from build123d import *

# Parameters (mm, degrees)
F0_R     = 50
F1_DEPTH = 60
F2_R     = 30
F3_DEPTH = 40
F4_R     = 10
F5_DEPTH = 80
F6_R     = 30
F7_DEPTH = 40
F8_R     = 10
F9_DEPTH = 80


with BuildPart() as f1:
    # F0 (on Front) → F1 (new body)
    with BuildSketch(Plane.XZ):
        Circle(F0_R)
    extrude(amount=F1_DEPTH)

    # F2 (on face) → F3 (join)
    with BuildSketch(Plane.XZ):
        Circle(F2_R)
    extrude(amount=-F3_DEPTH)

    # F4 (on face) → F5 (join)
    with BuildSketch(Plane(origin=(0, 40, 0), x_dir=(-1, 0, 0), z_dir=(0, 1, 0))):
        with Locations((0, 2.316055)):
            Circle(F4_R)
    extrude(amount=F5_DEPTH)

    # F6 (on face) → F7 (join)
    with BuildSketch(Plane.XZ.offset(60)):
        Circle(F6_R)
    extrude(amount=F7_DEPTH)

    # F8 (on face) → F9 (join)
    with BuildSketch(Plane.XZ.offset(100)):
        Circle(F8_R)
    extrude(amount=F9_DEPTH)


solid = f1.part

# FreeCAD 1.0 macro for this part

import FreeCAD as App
import Part
import Sketcher
from FreeCAD import Vector

doc = App.newDocument("Part")
params = doc.addObject("Spreadsheet::Sheet", "Params")
for row, (alias, value) in enumerate([
    ("sketch1_diameter", "100 mm"),
    ("pad1_length", "60 mm"),
    ("sketch2_diameter", "60 mm"),
    ("pad2_length", "40 mm"),
    ("sketch3_diameter", "20 mm"),
    ("pad3_length", "80 mm"),
    ("sketch4_diameter", "60 mm"),
    ("pad4_length", "40 mm"),
    ("sketch5_diameter", "20 mm"),
    ("pad5_length", "80 mm"),
], start=1):
    params.set(f"A{row}", alias)
    params.set(f"B{row}", "=" + value)
    params.setAlias(f"B{row}", alias)

body = doc.addObject("PartDesign::Body", "Body")

sketch1 = body.newObject("Sketcher::SketchObject", "Sketch")
sketch1.AttachmentSupport = (doc.getObject("XZ_Plane"), [""])
sketch1.MapMode = "FlatFace"
sketch1.addGeometry(Part.Circle(Vector(0, 0, 0), Vector(0, 0, 1), 50), False)
sketch1.addConstraint(Sketcher.Constraint("Coincident", 0, 3, -1, 1))
sketch1.addConstraint(Sketcher.Constraint("Diameter", 0, 100.0))
sketch1.setExpression("Constraints[1]", "Params.sketch1_diameter")
pad1 = body.newObject("PartDesign::Pad", "Pad")
pad1.Profile = sketch1
pad1.setExpression("Length", "Params.pad1_length")

sketch2 = body.newObject("Sketcher::SketchObject", "Sketch001")
sketch2.AttachmentSupport = (doc.getObject("XZ_Plane"), [""])
sketch2.MapMode = "FlatFace"
sketch2.addGeometry(Part.Circle(Vector(0, 0, 0), Vector(0, 0, 1), 30), False)
sketch2.addConstraint(Sketcher.Constraint("Coincident", 0, 3, -1, 1))
sketch2.addConstraint(Sketcher.Constraint("Diameter", 0, 60.0))
sketch2.setExpression("Constraints[1]", "Params.sketch2_diameter")
pad2 = body.newObject("PartDesign::Pad", "Pad001")
pad2.Profile = sketch2
pad2.setExpression("Length", "Params.pad2_length")
pad2.Reversed = True

sketch3 = body.newObject("Sketcher::SketchObject", "Sketch002")
sketch3.AttachmentSupport = (doc.getObject("XZ_Plane"), [""])
sketch3.MapMode = "FlatFace"
sketch3.AttachmentOffset = App.Placement(Vector(0, 0, -40), App.Rotation())
sketch3.addGeometry(Part.Circle(Vector(0, 2, 0), Vector(0, 0, 1), 10), False)
sketch3.addConstraint(Sketcher.Constraint("PointOnObject", 0, 3, -2))
sketch3.addConstraint(Sketcher.Constraint("Diameter", 0, 20.0))
sketch3.addConstraint(Sketcher.Constraint("DistanceY", -1, 1, 0, 3, 2.316055))
sketch3.setExpression("Constraints[1]", "Params.sketch3_diameter")
pad3 = body.newObject("PartDesign::Pad", "Pad002")
pad3.Profile = sketch3
pad3.setExpression("Length", "Params.pad3_length")
pad3.Reversed = True

sketch4 = body.newObject("Sketcher::SketchObject", "Sketch003")
sketch4.AttachmentSupport = (doc.getObject("XZ_Plane"), [""])
sketch4.MapMode = "FlatFace"
sketch4.AttachmentOffset = App.Placement(Vector(0, 0, 60), App.Rotation())
sketch4.addGeometry(Part.Circle(Vector(0, 0, 0), Vector(0, 0, 1), 30), False)
sketch4.addConstraint(Sketcher.Constraint("Coincident", 0, 3, -1, 1))
sketch4.addConstraint(Sketcher.Constraint("Diameter", 0, 60.0))
sketch4.setExpression("Constraints[1]", "Params.sketch4_diameter")
pad4 = body.newObject("PartDesign::Pad", "Pad003")
pad4.Profile = sketch4
pad4.setExpression("Length", "Params.pad4_length")

sketch5 = body.newObject("Sketcher::SketchObject", "Sketch004")
sketch5.AttachmentSupport = (doc.getObject("XZ_Plane"), [""])
sketch5.MapMode = "FlatFace"
sketch5.AttachmentOffset = App.Placement(Vector(0, 0, 100), App.Rotation())
sketch5.addGeometry(Part.Circle(Vector(0, 0, 0), Vector(0, 0, 1), 10), False)
sketch5.addConstraint(Sketcher.Constraint("Coincident", 0, 3, -1, 1))
sketch5.addConstraint(Sketcher.Constraint("Diameter", 0, 20.0))
sketch5.setExpression("Constraints[1]", "Params.sketch5_diameter")
pad5 = body.newObject("PartDesign::Pad", "Pad004")
pad5.Profile = sketch5
pad5.setExpression("Length", "Params.pad5_length")

doc.recompute()
